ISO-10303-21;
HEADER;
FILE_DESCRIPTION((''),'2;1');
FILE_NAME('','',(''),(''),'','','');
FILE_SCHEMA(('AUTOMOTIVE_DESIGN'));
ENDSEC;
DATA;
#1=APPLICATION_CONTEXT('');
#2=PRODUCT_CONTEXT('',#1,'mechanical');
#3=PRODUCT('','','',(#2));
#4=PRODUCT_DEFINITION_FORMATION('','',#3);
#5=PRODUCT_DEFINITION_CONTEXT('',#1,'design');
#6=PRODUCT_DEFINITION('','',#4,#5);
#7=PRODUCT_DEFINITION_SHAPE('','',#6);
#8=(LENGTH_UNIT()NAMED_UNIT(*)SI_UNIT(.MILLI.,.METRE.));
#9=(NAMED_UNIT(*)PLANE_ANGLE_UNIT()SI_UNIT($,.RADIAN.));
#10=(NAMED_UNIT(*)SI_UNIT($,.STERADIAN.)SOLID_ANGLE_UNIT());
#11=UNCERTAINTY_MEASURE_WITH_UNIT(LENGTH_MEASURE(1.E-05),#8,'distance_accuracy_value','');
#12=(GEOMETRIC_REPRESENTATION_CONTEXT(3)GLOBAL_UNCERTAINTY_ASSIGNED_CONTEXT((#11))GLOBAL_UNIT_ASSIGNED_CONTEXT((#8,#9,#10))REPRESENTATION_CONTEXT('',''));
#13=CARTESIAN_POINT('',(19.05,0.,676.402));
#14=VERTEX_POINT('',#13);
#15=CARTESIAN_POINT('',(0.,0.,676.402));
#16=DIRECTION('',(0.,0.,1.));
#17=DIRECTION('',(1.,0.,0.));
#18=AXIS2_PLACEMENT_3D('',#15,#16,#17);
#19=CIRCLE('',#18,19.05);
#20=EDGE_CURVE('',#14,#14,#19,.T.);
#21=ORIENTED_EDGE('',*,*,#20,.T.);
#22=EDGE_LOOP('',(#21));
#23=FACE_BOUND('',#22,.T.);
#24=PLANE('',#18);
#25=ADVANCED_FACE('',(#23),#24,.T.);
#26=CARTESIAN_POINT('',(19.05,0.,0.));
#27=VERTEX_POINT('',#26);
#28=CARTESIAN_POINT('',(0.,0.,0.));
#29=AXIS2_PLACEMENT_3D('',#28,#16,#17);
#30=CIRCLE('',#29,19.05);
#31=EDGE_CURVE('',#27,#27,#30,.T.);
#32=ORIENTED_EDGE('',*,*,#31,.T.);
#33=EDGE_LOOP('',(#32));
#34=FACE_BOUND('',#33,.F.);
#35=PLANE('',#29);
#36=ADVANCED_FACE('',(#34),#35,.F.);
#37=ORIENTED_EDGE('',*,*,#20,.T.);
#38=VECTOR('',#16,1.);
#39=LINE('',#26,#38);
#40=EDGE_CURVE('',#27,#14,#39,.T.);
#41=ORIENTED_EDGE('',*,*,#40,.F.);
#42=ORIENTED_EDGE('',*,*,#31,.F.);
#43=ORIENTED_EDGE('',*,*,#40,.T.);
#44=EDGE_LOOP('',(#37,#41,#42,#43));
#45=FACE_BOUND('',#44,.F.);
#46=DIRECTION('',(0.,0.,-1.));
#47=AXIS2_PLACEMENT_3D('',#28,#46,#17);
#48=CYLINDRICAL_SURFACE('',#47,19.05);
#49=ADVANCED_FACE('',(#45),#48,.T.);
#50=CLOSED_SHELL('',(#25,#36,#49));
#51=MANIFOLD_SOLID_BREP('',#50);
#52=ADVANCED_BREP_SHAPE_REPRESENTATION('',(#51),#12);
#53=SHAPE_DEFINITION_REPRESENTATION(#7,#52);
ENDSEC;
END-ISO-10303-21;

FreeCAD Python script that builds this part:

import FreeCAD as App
import Part
import Sketcher
from FreeCAD import Vector
Q = App.Units.Quantity

doc = App.newDocument("Part")
body = doc.addObject("PartDesign::Body", "Body")

# Sketch on XY plane
sketch1 = body.newObject("Sketcher::SketchObject", "Sketch")
sketch1.AttachmentSupport = (doc.getObject("XY_Plane"), [""])
sketch1.MapMode = "FlatFace"
sketch1.addGeometry(Part.Circle(Vector(0, 0, 0), Vector(0, 0, 1), 19.05), False)
sketch1.addConstraint(Sketcher.Constraint("Coincident", 0, 3, -1, 1))
sketch1.addConstraint(Sketcher.Constraint("Diameter", 0, Q("1.5 in")))
pad1 = body.newObject("PartDesign::Pad", "Pad")
pad1.Profile = sketch1
pad1.Length = Q("26.63 in")

doc.recompute()
